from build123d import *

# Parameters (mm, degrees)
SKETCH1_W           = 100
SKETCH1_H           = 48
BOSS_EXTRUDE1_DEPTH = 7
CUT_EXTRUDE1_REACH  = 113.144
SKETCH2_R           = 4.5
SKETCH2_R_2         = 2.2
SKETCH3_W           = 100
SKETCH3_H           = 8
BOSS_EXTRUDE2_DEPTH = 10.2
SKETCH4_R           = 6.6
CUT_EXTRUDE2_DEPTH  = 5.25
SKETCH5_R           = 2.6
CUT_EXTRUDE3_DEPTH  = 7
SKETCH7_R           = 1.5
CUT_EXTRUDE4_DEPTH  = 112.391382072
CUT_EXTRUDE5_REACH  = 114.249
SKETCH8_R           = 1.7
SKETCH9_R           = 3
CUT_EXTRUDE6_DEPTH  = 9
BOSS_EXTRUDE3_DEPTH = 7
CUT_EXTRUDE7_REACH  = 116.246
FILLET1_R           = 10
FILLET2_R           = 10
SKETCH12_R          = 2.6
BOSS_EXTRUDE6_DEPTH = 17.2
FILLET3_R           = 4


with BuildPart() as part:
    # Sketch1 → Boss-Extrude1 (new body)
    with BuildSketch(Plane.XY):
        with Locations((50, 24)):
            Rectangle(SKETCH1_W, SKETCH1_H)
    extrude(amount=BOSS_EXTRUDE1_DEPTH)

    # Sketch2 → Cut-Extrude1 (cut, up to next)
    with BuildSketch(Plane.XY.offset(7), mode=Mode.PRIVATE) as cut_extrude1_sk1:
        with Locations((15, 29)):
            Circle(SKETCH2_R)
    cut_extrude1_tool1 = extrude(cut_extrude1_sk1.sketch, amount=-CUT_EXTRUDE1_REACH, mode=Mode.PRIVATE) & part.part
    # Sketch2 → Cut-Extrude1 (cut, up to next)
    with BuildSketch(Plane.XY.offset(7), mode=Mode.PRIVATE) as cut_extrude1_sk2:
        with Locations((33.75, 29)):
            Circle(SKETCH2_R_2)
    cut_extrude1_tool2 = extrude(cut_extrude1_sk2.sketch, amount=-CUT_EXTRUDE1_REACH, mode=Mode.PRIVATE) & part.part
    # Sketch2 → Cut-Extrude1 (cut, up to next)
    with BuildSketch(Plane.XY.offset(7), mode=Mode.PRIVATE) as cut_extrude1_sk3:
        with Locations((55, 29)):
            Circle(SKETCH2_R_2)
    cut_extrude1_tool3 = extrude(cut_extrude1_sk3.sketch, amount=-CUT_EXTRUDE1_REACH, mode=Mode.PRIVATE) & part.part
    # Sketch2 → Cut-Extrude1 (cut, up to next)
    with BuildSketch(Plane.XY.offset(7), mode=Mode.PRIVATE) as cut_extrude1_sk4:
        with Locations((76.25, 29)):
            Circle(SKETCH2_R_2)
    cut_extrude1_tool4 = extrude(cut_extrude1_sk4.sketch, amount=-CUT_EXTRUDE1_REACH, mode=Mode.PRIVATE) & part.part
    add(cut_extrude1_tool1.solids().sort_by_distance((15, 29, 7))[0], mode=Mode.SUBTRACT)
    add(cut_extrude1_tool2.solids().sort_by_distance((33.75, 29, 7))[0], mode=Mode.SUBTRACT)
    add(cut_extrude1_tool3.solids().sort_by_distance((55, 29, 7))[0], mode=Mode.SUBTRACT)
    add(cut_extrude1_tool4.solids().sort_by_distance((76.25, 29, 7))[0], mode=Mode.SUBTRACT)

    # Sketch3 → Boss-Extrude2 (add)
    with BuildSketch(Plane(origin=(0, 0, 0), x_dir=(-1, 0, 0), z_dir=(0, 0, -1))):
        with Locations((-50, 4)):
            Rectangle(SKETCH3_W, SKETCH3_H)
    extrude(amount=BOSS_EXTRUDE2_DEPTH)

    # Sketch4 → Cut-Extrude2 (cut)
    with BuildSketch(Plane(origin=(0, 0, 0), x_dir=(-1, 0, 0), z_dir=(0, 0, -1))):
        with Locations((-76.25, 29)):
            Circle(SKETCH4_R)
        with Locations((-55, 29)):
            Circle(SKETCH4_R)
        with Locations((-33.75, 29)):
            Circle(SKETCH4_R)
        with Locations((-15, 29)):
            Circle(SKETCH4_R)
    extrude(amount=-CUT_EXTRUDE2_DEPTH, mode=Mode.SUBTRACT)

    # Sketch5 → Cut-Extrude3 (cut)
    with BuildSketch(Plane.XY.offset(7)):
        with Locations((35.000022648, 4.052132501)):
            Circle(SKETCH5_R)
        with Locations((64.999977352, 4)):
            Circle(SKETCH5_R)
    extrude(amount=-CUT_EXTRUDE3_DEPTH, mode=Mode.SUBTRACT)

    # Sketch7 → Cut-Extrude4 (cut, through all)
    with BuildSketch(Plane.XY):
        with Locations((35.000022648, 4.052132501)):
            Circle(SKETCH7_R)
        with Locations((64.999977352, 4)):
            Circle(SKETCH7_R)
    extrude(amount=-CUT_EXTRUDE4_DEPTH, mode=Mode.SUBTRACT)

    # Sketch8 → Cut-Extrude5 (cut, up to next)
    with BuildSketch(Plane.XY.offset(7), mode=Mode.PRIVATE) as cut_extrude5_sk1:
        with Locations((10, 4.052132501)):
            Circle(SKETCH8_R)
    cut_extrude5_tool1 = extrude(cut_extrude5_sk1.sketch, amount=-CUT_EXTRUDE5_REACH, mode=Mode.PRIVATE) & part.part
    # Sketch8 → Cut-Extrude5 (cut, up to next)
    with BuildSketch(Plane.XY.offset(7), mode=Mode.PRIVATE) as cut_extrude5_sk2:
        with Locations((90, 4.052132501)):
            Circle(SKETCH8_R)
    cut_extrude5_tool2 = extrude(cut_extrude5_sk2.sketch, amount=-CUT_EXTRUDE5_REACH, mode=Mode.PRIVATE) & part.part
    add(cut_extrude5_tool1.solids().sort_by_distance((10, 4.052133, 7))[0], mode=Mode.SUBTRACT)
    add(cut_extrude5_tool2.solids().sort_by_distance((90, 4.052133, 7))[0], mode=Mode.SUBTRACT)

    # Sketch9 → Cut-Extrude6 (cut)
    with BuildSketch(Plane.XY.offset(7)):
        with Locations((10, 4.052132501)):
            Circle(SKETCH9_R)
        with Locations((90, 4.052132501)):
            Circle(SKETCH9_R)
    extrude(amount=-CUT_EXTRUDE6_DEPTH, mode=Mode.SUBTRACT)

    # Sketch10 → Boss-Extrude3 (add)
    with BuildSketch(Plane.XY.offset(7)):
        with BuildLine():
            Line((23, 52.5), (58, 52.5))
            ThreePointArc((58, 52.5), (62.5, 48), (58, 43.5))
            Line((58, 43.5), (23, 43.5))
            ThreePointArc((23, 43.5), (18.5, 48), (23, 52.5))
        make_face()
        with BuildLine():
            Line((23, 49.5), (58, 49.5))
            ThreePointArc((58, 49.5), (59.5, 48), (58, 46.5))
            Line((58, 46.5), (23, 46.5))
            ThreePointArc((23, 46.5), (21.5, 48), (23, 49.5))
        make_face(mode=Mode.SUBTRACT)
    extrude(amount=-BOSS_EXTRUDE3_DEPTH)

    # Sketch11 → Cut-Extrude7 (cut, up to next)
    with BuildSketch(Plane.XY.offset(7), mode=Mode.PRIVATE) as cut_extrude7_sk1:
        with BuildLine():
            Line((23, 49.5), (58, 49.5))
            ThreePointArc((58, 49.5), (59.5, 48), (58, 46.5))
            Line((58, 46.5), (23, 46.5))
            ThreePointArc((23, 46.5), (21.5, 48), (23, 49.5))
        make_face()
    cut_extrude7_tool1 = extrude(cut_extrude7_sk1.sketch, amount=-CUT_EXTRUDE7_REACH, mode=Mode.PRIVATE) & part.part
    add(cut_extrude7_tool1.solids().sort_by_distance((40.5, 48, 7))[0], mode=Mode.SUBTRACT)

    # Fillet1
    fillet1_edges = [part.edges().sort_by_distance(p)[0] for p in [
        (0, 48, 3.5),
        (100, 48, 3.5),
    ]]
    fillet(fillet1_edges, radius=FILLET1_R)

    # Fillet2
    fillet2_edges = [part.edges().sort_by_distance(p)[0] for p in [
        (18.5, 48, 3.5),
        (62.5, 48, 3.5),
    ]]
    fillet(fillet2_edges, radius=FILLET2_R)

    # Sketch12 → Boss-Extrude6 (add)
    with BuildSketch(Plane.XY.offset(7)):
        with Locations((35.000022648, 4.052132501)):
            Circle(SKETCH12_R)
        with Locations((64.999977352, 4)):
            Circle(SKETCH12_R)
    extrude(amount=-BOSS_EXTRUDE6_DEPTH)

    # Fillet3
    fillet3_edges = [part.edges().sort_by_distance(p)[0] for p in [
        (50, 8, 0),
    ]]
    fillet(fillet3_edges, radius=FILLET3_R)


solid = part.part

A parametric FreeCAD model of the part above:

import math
import FreeCAD as App
import Part
import Sketcher
from FreeCAD import Vector
Q = App.Units.Quantity


def edges_at(feature, points):
    """Names of the edges that pass closest to the given points."""
    edges = feature.Shape.Edges
    near = lambda p: min(range(len(edges)), key=lambda i: edges[i].distToShape(Part.Vertex(*p))[0])
    return sorted({f"Edge{near(p) + 1}" for p in points})


def add_polygon(sketch, points):
    """Adds a closed chain of lines whose ends are joined by coincident constraints."""
    first, n = sketch.GeometryCount, len(points)
    for a, b in zip(points, points[1:] + points[:1]):
        sketch.addGeometry(Part.LineSegment(App.Vector(*a, 0), App.Vector(*b, 0)), False)
    for i in range(n):
        sketch.addConstraint(Sketcher.Constraint("Coincident", first + i, 2, first + (i + 1) % n, 1))

doc = App.newDocument("Part")
body = doc.addObject("PartDesign::Body", "Body")

sketch1 = doc.addObject("Sketcher::SketchObject", "Sketch")
body.addObject(sketch1)
sketch1.AttachmentSupport = (doc.XY_Plane, [""])
sketch1.MapMode = "FlatFace"
add_polygon(sketch1, [(0, 48), (0, 0), (100, 0), (100, 48)])
sketch1.addConstraint([
    Sketcher.Constraint("Vertical", 0),
    Sketcher.Constraint("Horizontal", 1),
    Sketcher.Constraint("Vertical", 2),
    Sketcher.Constraint("Horizontal", 3),
    Sketcher.Constraint("Coincident", 0, 2, -1, 1),
    Sketcher.Constraint("DistanceX", 1, 1, 1, 2, Q("100 mm")),
    Sketcher.Constraint("DistanceY", 0, 2, 0, 1, Q("48 mm")),
])
pad1 = doc.addObject("PartDesign::Pad", "Pad")
body.addObject(pad1)
pad1.Profile = sketch1
pad1.Length = 7

sketch2 = doc.addObject("Sketcher::SketchObject", "Sketch001")
body.addObject(sketch2)
sketch2.AttachmentSupport = (doc.XY_Plane, [""])
sketch2.MapMode = "FlatFace"
sketch2.AttachmentOffset = App.Placement(Vector(0, 0, 7), App.Rotation())
sketch2.addGeometry(Part.Circle(Vector(15, 29, 0), Vector(0, 0, 1), 4.5), False)
sketch2.addConstraint([
    Sketcher.Constraint("Diameter", 0, Q("9 mm")),
    Sketcher.Constraint("DistanceX", -1, 1, 0, 3, Q("15 mm")),
    Sketcher.Constraint("DistanceY", -1, 1, 0, 3, Q("29 mm")),
])
pocket1 = doc.addObject("PartDesign::Pocket", "Pocket")
body.addObject(pocket1)
pocket1.Profile = sketch2
pocket1.Type = "UpToFirst"

sketch3 = doc.addObject("Sketcher::SketchObject", "Sketch002")
body.addObject(sketch3)
sketch3.AttachmentSupport = (doc.XY_Plane, [""])
sketch3.MapMode = "FlatFace"
sketch3.AttachmentOffset = App.Placement(Vector(0, 0, 7), App.Rotation())
sketch3.addGeometry(Part.Circle(Vector(33.8, 29, 0), Vector(0, 0, 1), 2.2), False)
sketch3.addConstraint([
    Sketcher.Constraint("Diameter", 0, Q("4.4 mm")),
    Sketcher.Constraint("DistanceY", -1, 1, 0, 3, Q("29 mm")),
    Sketcher.Constraint("DistanceX", -1, 1, 0, 3, Q("33.75 mm")),
])
pocket2 = doc.addObject("PartDesign::Pocket", "Pocket001")
body.addObject(pocket2)
pocket2.Profile = sketch3
pocket2.Type = "UpToFirst"

sketch4 = doc.addObject("Sketcher::SketchObject", "Sketch003")
body.addObject(sketch4)
sketch4.AttachmentSupport = (doc.XY_Plane, [""])
sketch4.MapMode = "FlatFace"
sketch4.AttachmentOffset = App.Placement(Vector(0, 0, 7), App.Rotation())
sketch4.addGeometry(Part.Circle(Vector(55, 29, 0), Vector(0, 0, 1), 2.2), False)
sketch4.addConstraint([
    Sketcher.Constraint("Diameter", 0, Q("4.4 mm")),
    Sketcher.Constraint("DistanceX", -1, 1, 0, 3, Q("55 mm")),
    Sketcher.Constraint("DistanceY", -1, 1, 0, 3, Q("29 mm")),
])
pocket3 = doc.addObject("PartDesign::Pocket", "Pocket002")
body.addObject(pocket3)
pocket3.Profile = sketch4
pocket3.Type = "UpToFirst"

sketch5 = doc.addObject("Sketcher::SketchObject", "Sketch004")
body.addObject(sketch5)
sketch5.AttachmentSupport = (doc.XY_Plane, [""])
sketch5.MapMode = "FlatFace"
sketch5.AttachmentOffset = App.Placement(Vector(0, 0, 7), App.Rotation())
sketch5.addGeometry(Part.Circle(Vector(76.2, 29, 0), Vector(0, 0, 1), 2.2), False)
sketch5.addConstraint([
    Sketcher.Constraint("Diameter", 0, Q("4.4 mm")),
    Sketcher.Constraint("DistanceY", -1, 1, 0, 3, Q("29 mm")),
    Sketcher.Constraint("DistanceX", -1, 1, 0, 3, Q("76.25 mm")),
])
pocket4 = doc.addObject("PartDesign::Pocket", "Pocket003")
body.addObject(pocket4)
pocket4.Profile = sketch5
pocket4.Type = "UpToFirst"

sketch6 = doc.addObject("Sketcher::SketchObject", "Sketch005")
body.addObject(sketch6)
sketch6.AttachmentSupport = (doc.XY_Plane, [""])
sketch6.MapMode = "FlatFace"
add_polygon(sketch6, [(100, 8), (100, 0), (0, 0), (0, 8)])
sketch6.addConstraint([
    Sketcher.Constraint("Vertical", 0),
    Sketcher.Constraint("Horizontal", 1),
    Sketcher.Constraint("Vertical", 2),
    Sketcher.Constraint("Horizontal", 3),
    Sketcher.Constraint("Coincident", 1, 2, -1, 1),
    Sketcher.Constraint("DistanceX", 1, 2, 1, 1, Q("100 mm")),
    Sketcher.Constraint("DistanceY", 0, 2, 0, 1, Q("8 mm")),
])
pad2 = doc.addObject("PartDesign::Pad", "Pad001")
body.addObject(pad2)
pad2.Profile = sketch6
pad2.Length = 10.2
pad2.Reversed = True

sketch7 = doc.addObject("Sketcher::SketchObject", "Sketch006")
body.addObject(sketch7)
sketch7.AttachmentSupport = (doc.XY_Plane, [""])
sketch7.MapMode = "FlatFace"
sketch7.addGeometry([
    Part.Circle(Vector(76, 29, 0), Vector(0, 0, 1), 7),
    Part.Circle(Vector(55, 29, 0), Vector(0, 0, 1), 7),
    Part.Circle(Vector(34, 29, 0), Vector(0, 0, 1), 7),
    Part.Circle(Vector(15, 29, 0), Vector(0, 0, 1), 7),
], False)
sketch7.addConstraint([
    Sketcher.Constraint("Equal", 0, 1),
    Sketcher.Constraint("Equal", 1, 2),
    Sketcher.Constraint("Equal", 2, 3),
    Sketcher.Constraint("Horizontal", 0, 3, 1, 3),
    Sketcher.Constraint("Horizontal", 1, 3, 2, 3),
    Sketcher.Constraint("Horizontal", 2, 3, 3, 3),
    Sketcher.Constraint("Diameter", 0, Q("13.2 mm")),
    Sketcher.Constraint("DistanceY", -1, 1, 0, 3, Q("29 mm")),
    Sketcher.Constraint("DistanceX", -1, 1, 1, 3, Q("55 mm")),
    Sketcher.Constraint("DistanceX", -1, 1, 3, 3, Q("15 mm")),
    Sketcher.Constraint("DistanceX", 2, 3, 0, 3, Q("42.5 mm")),
    Sketcher.Constraint("DistanceX", -1, 1, 0, 3, Q("76.25 mm")),
])
pocket5 = doc.addObject("PartDesign::Pocket", "Pocket004")
body.addObject(pocket5)
pocket5.Profile = sketch7
pocket5.Length = 5.25
pocket5.Reversed = True

sketch8 = doc.addObject("Sketcher::SketchObject", "Sketch007")
body.addObject(sketch8)
sketch8.AttachmentSupport = (doc.XY_Plane, [""])
sketch8.MapMode = "FlatFace"
sketch8.AttachmentOffset = App.Placement(Vector(0, 0, 7), App.Rotation())
sketch8.addGeometry([
    Part.Circle(Vector(35, 4.1, 0), Vector(0, 0, 1), 2.6),
    Part.Circle(Vector(65, 4, 0), Vector(0, 0, 1), 2.6),
], False)
sketch8.addConstraint([
    Sketcher.Constraint("Equal", 0, 1),
    Sketcher.Constraint("Diameter", 0, Q("5.2 mm")),
    Sketcher.Constraint("DistanceY", -1, 1, 1, 3, Q("4 mm")),
    Sketcher.Constraint("DistanceX", -1, 1, 0, 3, Q("35.000023 mm")),
    Sketcher.Constraint("DistanceY", -1, 1, 0, 3, Q("4.052133 mm")),
    Sketcher.Constraint("DistanceX", -1, 1, 1, 3, Q("64.999977 mm")),
])
pocket6 = doc.addObject("PartDesign::Pocket", "Pocket005")
body.addObject(pocket6)
pocket6.Profile = sketch8
pocket6.Length = 7

sketch9 = doc.addObject("Sketcher::SketchObject", "Sketch008")
body.addObject(sketch9)
sketch9.AttachmentSupport = (doc.XY_Plane, [""])
sketch9.MapMode = "FlatFace"
sketch9.addGeometry([
    Part.Circle(Vector(35, 4.1, 0), Vector(0, 0, 1), 1.5),
    Part.Circle(Vector(65, 4, 0), Vector(0, 0, 1), 1.5),
], False)
sketch9.addConstraint([
    Sketcher.Constraint("Equal", 0, 1),
    Sketcher.Constraint("Diameter", 0, Q("3 mm")),
    Sketcher.Constraint("DistanceY", -1, 1, 1, 3, Q("4 mm")),
    Sketcher.Constraint("DistanceX", -1, 1, 0, 3, Q("35.000023 mm")),
    Sketcher.Constraint("DistanceY", -1, 1, 0, 3, Q("4.052133 mm")),
    Sketcher.Constraint("DistanceX", -1, 1, 1, 3, Q("64.999977 mm")),
])
pocket7 = doc.addObject("PartDesign::Pocket", "Pocket006")
body.addObject(pocket7)
pocket7.Profile = sketch9
pocket7.Type = "ThroughAll"

sketch10 = doc.addObject("Sketcher::SketchObject", "Sketch009")
body.addObject(sketch10)
sketch10.AttachmentSupport = (doc.XY_Plane, [""])
sketch10.MapMode = "FlatFace"
sketch10.AttachmentOffset = App.Placement(Vector(0, 0, 7), App.Rotation())
sketch10.addGeometry(Part.Circle(Vector(10, 4.1, 0), Vector(0, 0, 1), 1.7), False)
sketch10.addConstraint([
    Sketcher.Constraint("Diameter", 0, Q("3.4 mm")),
    Sketcher.Constraint("DistanceX", -1, 1, 0, 3, Q("10 mm")),
    Sketcher.Constraint("DistanceY", -1, 1, 0, 3, Q("4.052133 mm")),
])
pocket8 = doc.addObject("PartDesign::Pocket", "Pocket007")
body.addObject(pocket8)
pocket8.Profile = sketch10
pocket8.Type = "UpToFirst"

sketch11 = doc.addObject("Sketcher::SketchObject", "Sketch010")
body.addObject(sketch11)
sketch11.AttachmentSupport = (doc.XY_Plane, [""])
sketch11.MapMode = "FlatFace"
sketch11.AttachmentOffset = App.Placement(Vector(0, 0, 7), App.Rotation())
sketch11.addGeometry(Part.Circle(Vector(90, 4.1, 0), Vector(0, 0, 1), 1.7), False)
sketch11.addConstraint([
    Sketcher.Constraint("Diameter", 0, Q("3.4 mm")),
    Sketcher.Constraint("DistanceX", -1, 1, 0, 3, Q("90 mm")),
    Sketcher.Constraint("DistanceY", -1, 1, 0, 3, Q("4.052133 mm")),
])
pocket9 = doc.addObject("PartDesign::Pocket", "Pocket008")
body.addObject(pocket9)
pocket9.Profile = sketch11
pocket9.Type = "UpToFirst"

sketch12 = doc.addObject("Sketcher::SketchObject", "Sketch011")
body.addObject(sketch12)
sketch12.AttachmentSupport = (doc.XY_Plane, [""])
sketch12.MapMode = "FlatFace"
sketch12.AttachmentOffset = App.Placement(Vector(0, 0, 7), App.Rotation())
sketch12.addGeometry([
    Part.Circle(Vector(10, 4.1, 0), Vector(0, 0, 1), 3),
    Part.Circle(Vector(90, 4.1, 0), Vector(0, 0, 1), 3),
], False)
sketch12.addConstraint([
    Sketcher.Constraint("Equal", 0, 1),
    Sketcher.Constraint("Horizontal", 0, 3, 1, 3),
    Sketcher.Constraint("Diameter", 0, Q("6 mm")),
    Sketcher.Constraint("DistanceX", -1, 1, 0, 3, Q("10 mm")),
    Sketcher.Constraint("DistanceX", -1, 1, 1, 3, Q("90 mm")),
    Sketcher.Constraint("DistanceY", -1, 1, 0, 3, Q("4.052133 mm")),
])
pocket10 = doc.addObject("PartDesign::Pocket", "Pocket009")
body.addObject(pocket10)
pocket10.Profile = sketch12
pocket10.Length = 9

sketch13 = doc.addObject("Sketcher::SketchObject", "Sketch012")
body.addObject(sketch13)
sketch13.AttachmentSupport = (doc.XY_Plane, [""])
sketch13.MapMode = "FlatFace"
sketch13.AttachmentOffset = App.Placement(Vector(0, 0, 7), App.Rotation())
sketch13.addGeometry([
    Part.LineSegment(Vector(58, 52.5, 0), Vector(23, 52.5, 0)),
    Part.ArcOfCircle(Part.Circle(Vector(23, 48, 0), Vector(0, 0, 1), 4.5), math.radians(90), math.radians(270)),
    Part.LineSegment(Vector(23, 43.5, 0), Vector(58, 43.5, 0)),
    Part.ArcOfCircle(Part.Circle(Vector(58, 48, 0), Vector(0, 0, 1), 4.5), math.radians(-90), math.radians(90)),
    Part.LineSegment(Vector(23, 49.5, 0), Vector(58, 49.5, 0)),
    Part.ArcOfCircle(Part.Circle(Vector(58, 48, 0), Vector(0, 0, 1), 1.5), math.radians(-90), math.radians(90)),
    Part.LineSegment(Vector(58, 46.5, 0), Vector(23, 46.5, 0)),
    Part.ArcOfCircle(Part.Circle(Vector(23, 48, 0), Vector(0, 0, 1), 1.5), math.radians(90), math.radians(270)),
], False)
sketch13.addConstraint([
    Sketcher.Constraint("Tangent", 0, 2, 1, 1),
    Sketcher.Constraint("Tangent", 1, 2, 2, 1),
    Sketcher.Constraint("Tangent", 2, 2, 3, 1),
    Sketcher.Constraint("Tangent", 3, 2, 0, 1),
    Sketcher.Constraint("Tangent", 4, 2, 5, 2),
    Sketcher.Constraint("Tangent", 5, 1, 6, 1),
    Sketcher.Constraint("Tangent", 6, 2, 7, 2),
    Sketcher.Constraint("Tangent", 7, 1, 4, 1),
    Sketcher.Constraint("Horizontal", 0),
    Sketcher.Constraint("Horizontal", 2),
    Sketcher.Constraint("Horizontal", 4),
    Sketcher.Constraint("Horizontal", 6),
    Sketcher.Constraint("Coincident", 5, 3, 3, 3),
    Sketcher.Constraint("Vertical", 7, 3, 0, 2),
    Sketcher.Constraint("Radius", 1, Q("4.5 mm")),
    Sketcher.Constraint("Radius", 5, Q("1.5 mm")),
    Sketcher.Constraint("DistanceX", 0, 2, 0, 1, Q("35 mm")),
    Sketcher.Constraint("DistanceX", -1, 1, 1, 3, Q("23 mm")),
    Sketcher.Constraint("DistanceY", -1, 1, 1, 3, Q("48 mm")),
])
pad3 = doc.addObject("PartDesign::Pad", "Pad002")
body.addObject(pad3)
pad3.Profile = sketch13
pad3.Length = 7
pad3.Reversed = True

sketch14 = doc.addObject("Sketcher::SketchObject", "Sketch013")
body.addObject(sketch14)
sketch14.AttachmentSupport = (doc.XY_Plane, [""])
sketch14.MapMode = "FlatFace"
sketch14.AttachmentOffset = App.Placement(Vector(0, 0, 7), App.Rotation())
sketch14.addGeometry([
    Part.LineSegment(Vector(58, 49.5, 0), Vector(23, 49.5, 0)),
    Part.ArcOfCircle(Part.Circle(Vector(23, 48, 0), Vector(0, 0, 1), 1.5), math.radians(90), math.radians(270)),
    Part.LineSegment(Vector(23, 46.5, 0), Vector(58, 46.5, 0)),
    Part.ArcOfCircle(Part.Circle(Vector(58, 48, 0), Vector(0, 0, 1), 1.5), math.radians(-90), math.radians(90)),
], False)
sketch14.addConstraint([
    Sketcher.Constraint("Tangent", 0, 2, 1, 1),
    Sketcher.Constraint("Tangent", 1, 2, 2, 1),
    Sketcher.Constraint("Tangent", 2, 2, 3, 1),
    Sketcher.Constraint("Tangent", 3, 2, 0, 1),
    Sketcher.Constraint("Horizontal", 0),
    Sketcher.Constraint("Horizontal", 2),
    Sketcher.Constraint("Radius", 1, Q("1.5 mm")),
    Sketcher.Constraint("DistanceX", 0, 2, 0, 1, Q("35 mm")),
    Sketcher.Constraint("DistanceX", -1, 1, 1, 3, Q("23 mm")),
    Sketcher.Constraint("DistanceY", -1, 1, 1, 3, Q("48 mm")),
])
pocket11 = doc.addObject("PartDesign::Pocket", "Pocket010")
body.addObject(pocket11)
pocket11.Profile = sketch14
pocket11.Type = "UpToFirst"
doc.recompute()

fillet = doc.addObject("PartDesign::Fillet", "Fillet")
body.addObject(fillet)
fillet.Base = (pocket11, edges_at(pocket11, [(0, 48, 3.5), (100, 48, 3.5)]))
fillet.Radius = 10
doc.recompute()

fillet2 = doc.addObject("PartDesign::Fillet", "Fillet001")
body.addObject(fillet2)
fillet2.Base = (fillet, edges_at(fillet, [(18.5, 48, 3.5), (62.5, 48, 3.5)]))
fillet2.Radius = 10

sketch15 = doc.addObject("Sketcher::SketchObject", "Sketch014")
body.addObject(sketch15)
sketch15.AttachmentSupport = (doc.XY_Plane, [""])
sketch15.MapMode = "FlatFace"
sketch15.AttachmentOffset = App.Placement(Vector(0, 0, 7), App.Rotation())
sketch15.addGeometry([
    Part.Circle(Vector(35, 4.1, 0), Vector(0, 0, 1), 2.6),
    Part.Circle(Vector(65, 4, 0), Vector(0, 0, 1), 2.6),
], False)
sketch15.addConstraint([
    Sketcher.Constraint("Equal", 0, 1),
    Sketcher.Constraint("Diameter", 0, Q("5.2 mm")),
    Sketcher.Constraint("DistanceY", -1, 1, 1, 3, Q("4 mm")),
    Sketcher.Constraint("DistanceX", -1, 1, 0, 3, Q("35.000023 mm")),
    Sketcher.Constraint("DistanceY", -1, 1, 0, 3, Q("4.052133 mm")),
    Sketcher.Constraint("DistanceX", -1, 1, 1, 3, Q("64.999977 mm")),
])
pad4 = doc.addObject("PartDesign::Pad", "Pad003")
body.addObject(pad4)
pad4.Profile = sketch15
pad4.Length = 17.2
pad4.Reversed = True
doc.recompute()

fillet3 = doc.addObject("PartDesign::Fillet", "Fillet002")
body.addObject(fillet3)
fillet3.Base = (pad4, edges_at(pad4, [(50, 8, 0)]))
fillet3.Radius = 4

doc.recompute()
